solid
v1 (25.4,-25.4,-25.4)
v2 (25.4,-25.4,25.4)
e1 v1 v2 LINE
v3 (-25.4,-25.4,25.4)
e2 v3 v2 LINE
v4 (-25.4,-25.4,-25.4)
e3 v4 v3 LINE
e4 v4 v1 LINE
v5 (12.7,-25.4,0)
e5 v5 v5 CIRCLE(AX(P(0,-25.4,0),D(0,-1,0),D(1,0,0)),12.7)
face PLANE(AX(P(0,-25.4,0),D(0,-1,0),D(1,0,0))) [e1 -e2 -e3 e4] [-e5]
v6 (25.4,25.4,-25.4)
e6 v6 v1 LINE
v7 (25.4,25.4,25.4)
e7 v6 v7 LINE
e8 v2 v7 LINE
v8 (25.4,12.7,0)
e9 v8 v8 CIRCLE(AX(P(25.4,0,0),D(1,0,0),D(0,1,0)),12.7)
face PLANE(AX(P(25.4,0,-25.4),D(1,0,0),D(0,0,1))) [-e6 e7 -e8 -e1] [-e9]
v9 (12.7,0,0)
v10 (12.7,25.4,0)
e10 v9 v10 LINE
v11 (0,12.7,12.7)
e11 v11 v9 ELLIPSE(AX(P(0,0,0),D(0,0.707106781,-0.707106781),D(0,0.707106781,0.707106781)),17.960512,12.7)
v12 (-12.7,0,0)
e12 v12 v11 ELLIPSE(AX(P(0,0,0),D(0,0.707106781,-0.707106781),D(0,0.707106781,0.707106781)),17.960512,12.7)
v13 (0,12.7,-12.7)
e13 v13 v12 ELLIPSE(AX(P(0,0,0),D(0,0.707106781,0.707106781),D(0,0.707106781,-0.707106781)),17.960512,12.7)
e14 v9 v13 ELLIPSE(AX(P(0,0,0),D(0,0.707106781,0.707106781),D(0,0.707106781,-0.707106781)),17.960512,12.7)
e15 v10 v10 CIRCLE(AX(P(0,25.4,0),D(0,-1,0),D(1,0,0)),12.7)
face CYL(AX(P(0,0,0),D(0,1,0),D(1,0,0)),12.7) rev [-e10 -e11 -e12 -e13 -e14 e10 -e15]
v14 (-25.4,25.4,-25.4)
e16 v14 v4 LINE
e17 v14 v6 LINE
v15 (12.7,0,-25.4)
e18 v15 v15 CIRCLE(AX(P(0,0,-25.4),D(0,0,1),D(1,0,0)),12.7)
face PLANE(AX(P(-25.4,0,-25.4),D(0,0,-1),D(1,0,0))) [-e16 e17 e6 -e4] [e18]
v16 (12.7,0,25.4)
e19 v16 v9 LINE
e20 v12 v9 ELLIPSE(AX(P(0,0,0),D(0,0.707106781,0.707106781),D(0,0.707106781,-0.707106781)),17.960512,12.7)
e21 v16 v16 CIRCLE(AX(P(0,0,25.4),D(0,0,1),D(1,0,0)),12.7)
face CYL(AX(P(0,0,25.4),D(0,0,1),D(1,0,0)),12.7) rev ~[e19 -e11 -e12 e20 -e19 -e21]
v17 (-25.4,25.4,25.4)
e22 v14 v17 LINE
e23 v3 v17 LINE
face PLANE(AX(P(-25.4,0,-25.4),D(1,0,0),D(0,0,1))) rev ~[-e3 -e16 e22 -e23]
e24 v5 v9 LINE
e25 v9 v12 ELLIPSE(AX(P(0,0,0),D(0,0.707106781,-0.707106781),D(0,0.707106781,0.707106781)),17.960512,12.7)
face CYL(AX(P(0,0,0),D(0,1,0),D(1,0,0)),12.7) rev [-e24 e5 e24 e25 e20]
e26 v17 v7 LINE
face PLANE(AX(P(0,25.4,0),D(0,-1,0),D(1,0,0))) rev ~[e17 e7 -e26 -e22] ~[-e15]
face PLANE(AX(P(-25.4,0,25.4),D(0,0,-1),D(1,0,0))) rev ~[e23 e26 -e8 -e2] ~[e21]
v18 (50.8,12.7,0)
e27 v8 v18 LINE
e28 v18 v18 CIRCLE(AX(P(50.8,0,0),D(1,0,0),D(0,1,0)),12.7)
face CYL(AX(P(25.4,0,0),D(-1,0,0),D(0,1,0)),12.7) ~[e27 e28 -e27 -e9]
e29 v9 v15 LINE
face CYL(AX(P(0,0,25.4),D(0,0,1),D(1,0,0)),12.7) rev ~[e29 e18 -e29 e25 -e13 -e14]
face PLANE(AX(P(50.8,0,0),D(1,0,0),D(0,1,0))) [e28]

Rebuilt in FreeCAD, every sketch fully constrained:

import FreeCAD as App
import Part
import Sketcher
from FreeCAD import Vector
Q = App.Units.Quantity


def add_polygon(sketch, points):
    """Adds a closed chain of lines whose ends are joined by coincident constraints."""
    first, n = sketch.GeometryCount, len(points)
    for a, b in zip(points, points[1:] + points[:1]):
        sketch.addGeometry(Part.LineSegment(App.Vector(*a, 0), App.Vector(*b, 0)), False)
    for i in range(n):
        sketch.addConstraint(Sketcher.Constraint("Coincident", first + i, 2, first + (i + 1) % n, 1))

doc = App.newDocument("Part")
params = doc.addObject("Spreadsheet::Sheet", "Params")
for row, (alias, value) in enumerate([
    ("sketch1_diameter", "1 in"),
    ("sketch1_width", "2 in"),
    ("pad1_length", "2 in"),
    ("sketch2_diameter", "1 in"),
    ("sketch3_diameter", "1 in"),
    ("pad2_length", "1 in"),
], start=1):
    params.set(f"A{row}", alias)
    params.set(f"B{row}", "=" + value)
    params.setAlias(f"B{row}", alias)

body = doc.addObject("PartDesign::Body", "Body")

# Sketch on XZ plane
sketch1 = doc.addObject("Sketcher::SketchObject", "Sketch")
body.addObject(sketch1)
sketch1.AttachmentSupport = (doc.XZ_Plane, [""])
sketch1.MapMode = "FlatFace"
add_polygon(sketch1, [(-25, 25), (-25, -25), (25, -25), (25, 25)])  # lines 0-3
sketch1.addGeometry(Part.Circle(Vector(0, 0, 0), Vector(0, 0, 1), 13), False)  # 4
sketch1.addConstraint([
    Sketcher.Constraint("Vertical", 0),
    Sketcher.Constraint("Horizontal", 1),
    Sketcher.Constraint("Vertical", 2),
    Sketcher.Constraint("Horizontal", 3),
    Sketcher.Constraint("Coincident", 4, 3, -1, 1),
    Sketcher.Constraint("Symmetric", 0, 2, 2, 2, -1, 1),
    Sketcher.Constraint("Equal", 3, 0),
    Sketcher.Constraint("Diameter", 4, Q("1 in")),
    Sketcher.Constraint("DistanceX", 1, 1, 1, 2, Q("2 in")),
])
sketch1.setExpression("Constraints[11]", "Params.sketch1_diameter")
sketch1.setExpression("Constraints[12]", "Params.sketch1_width")
pad1 = doc.addObject("PartDesign::Pad", "Pad")
body.addObject(pad1)
pad1.Profile = sketch1
pad1.setExpression("Length", "Params.pad1_length")
pad1.Midplane = True

# Sketch on XY plane
sketch2 = doc.addObject("Sketcher::SketchObject", "Sketch001")
body.addObject(sketch2)
sketch2.AttachmentSupport = (doc.XY_Plane, [""])
sketch2.MapMode = "FlatFace"
sketch2.AttachmentOffset = App.Placement(Vector(0, 0, 1 * 25.4), App.Rotation())
sketch2.addGeometry(Part.Circle(Vector(0, 0, 0), Vector(0, 0, 1), 13), False)
sketch2.addConstraint([
    Sketcher.Constraint("Coincident", 0, 3, -1, 1),
    Sketcher.Constraint("Diameter", 0, Q("1 in")),
])
sketch2.setExpression("Constraints[1]", "Params.sketch2_diameter")
pocket1 = doc.addObject("PartDesign::Pocket", "Pocket")
body.addObject(pocket1)
pocket1.Profile = sketch2
pocket1.Type = "ThroughAll"

# Sketch on YZ plane
sketch3 = doc.addObject("Sketcher::SketchObject", "Sketch002")
body.addObject(sketch3)
sketch3.AttachmentSupport = (doc.YZ_Plane, [""])
sketch3.MapMode = "FlatFace"
sketch3.AttachmentOffset = App.Placement(Vector(0, 0, 1 * 25.4), App.Rotation())
sketch3.addGeometry(Part.Circle(Vector(0, 0, 0), Vector(0, 0, 1), 13), False)
sketch3.addConstraint([
    Sketcher.Constraint("Coincident", 0, 3, -1, 1),
    Sketcher.Constraint("Diameter", 0, Q("1 in")),
])
sketch3.setExpression("Constraints[1]", "Params.sketch3_diameter")
pad2 = doc.addObject("PartDesign::Pad", "Pad001")
body.addObject(pad2)
pad2.Profile = sketch3
pad2.setExpression("Length", "Params.pad2_length")

doc.recompute()
